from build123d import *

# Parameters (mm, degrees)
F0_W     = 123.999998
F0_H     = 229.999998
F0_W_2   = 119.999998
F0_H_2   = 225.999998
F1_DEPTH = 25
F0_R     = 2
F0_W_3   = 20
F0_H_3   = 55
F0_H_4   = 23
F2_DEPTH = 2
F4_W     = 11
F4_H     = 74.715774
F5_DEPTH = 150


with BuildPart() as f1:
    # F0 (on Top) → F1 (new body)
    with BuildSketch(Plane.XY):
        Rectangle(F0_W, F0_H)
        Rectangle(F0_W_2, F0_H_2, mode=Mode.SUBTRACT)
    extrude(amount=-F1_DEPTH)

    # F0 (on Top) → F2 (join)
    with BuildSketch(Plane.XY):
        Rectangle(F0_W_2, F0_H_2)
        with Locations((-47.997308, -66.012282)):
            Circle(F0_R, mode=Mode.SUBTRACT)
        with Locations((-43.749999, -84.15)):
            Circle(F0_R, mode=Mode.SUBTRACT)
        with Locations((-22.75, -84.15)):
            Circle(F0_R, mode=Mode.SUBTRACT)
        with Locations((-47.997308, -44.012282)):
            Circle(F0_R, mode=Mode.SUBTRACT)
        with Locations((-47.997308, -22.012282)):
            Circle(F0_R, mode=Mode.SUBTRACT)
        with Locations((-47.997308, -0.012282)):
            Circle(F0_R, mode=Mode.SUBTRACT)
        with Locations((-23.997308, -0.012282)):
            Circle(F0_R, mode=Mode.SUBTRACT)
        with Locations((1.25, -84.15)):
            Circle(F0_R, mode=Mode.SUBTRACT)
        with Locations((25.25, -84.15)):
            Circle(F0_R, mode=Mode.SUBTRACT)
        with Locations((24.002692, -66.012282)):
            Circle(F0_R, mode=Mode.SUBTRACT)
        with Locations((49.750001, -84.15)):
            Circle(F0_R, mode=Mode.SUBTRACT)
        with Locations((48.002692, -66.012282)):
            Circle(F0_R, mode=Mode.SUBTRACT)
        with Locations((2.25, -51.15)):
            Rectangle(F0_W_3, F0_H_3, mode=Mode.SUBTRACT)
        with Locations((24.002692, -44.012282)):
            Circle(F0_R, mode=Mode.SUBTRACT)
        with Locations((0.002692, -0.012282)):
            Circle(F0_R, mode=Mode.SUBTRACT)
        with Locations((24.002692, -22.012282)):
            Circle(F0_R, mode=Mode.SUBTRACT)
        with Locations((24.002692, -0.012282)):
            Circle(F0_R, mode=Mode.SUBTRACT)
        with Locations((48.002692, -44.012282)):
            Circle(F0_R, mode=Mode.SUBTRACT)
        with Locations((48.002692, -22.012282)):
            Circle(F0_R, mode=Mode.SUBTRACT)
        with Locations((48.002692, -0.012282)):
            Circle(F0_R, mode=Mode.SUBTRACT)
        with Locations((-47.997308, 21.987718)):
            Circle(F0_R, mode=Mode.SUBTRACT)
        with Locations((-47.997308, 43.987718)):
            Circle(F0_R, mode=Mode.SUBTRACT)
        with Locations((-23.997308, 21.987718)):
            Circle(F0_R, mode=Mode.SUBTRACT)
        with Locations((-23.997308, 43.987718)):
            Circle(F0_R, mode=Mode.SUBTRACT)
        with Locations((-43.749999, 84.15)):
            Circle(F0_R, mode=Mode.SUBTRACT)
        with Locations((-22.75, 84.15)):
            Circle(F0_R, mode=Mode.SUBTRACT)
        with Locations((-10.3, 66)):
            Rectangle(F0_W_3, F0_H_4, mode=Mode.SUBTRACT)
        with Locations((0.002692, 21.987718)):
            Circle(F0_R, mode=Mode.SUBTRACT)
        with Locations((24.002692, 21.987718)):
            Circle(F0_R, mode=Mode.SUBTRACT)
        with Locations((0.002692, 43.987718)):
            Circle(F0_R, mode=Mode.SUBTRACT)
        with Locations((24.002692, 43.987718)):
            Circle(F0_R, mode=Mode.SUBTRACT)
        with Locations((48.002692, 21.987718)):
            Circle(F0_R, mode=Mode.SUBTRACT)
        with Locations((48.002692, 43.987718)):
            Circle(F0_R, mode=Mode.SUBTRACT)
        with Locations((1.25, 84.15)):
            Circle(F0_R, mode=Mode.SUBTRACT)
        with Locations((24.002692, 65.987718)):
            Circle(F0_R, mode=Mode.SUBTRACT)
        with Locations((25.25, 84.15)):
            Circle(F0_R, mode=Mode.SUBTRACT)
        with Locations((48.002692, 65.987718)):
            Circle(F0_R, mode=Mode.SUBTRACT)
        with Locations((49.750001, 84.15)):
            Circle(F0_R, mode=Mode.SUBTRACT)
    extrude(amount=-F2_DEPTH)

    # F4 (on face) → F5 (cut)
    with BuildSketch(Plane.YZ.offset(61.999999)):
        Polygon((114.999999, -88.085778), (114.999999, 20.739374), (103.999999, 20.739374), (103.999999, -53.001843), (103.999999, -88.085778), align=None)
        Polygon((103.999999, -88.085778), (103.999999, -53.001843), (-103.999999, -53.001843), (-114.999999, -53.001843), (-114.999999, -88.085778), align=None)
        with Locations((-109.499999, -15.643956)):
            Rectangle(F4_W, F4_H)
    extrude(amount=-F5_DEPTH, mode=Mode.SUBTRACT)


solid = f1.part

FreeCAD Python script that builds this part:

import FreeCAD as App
import Part
import Sketcher


def add_polygon(sketch, points):
    """Adds a closed chain of lines whose ends are joined by coincident constraints."""
    first, n = sketch.GeometryCount, len(points)
    for a, b in zip(points, points[1:] + points[:1]):
        sketch.addGeometry(Part.LineSegment(App.Vector(*a, 0), App.Vector(*b, 0)), False)
    for i in range(n):
        sketch.addConstraint(Sketcher.Constraint("Coincident", first + i, 2, first + (i + 1) % n, 1))

doc = App.newDocument("Part")
params = doc.addObject("Spreadsheet::Sheet", "Params")
for row, (alias, value) in enumerate([
    ("sketch1_width", "123.999998 mm"),
    ("sketch1_width2", "119.999998 mm"),
    ("sketch1_height", "229.999998 mm"),
    ("sketch1_height2", "225.999998 mm"),
    ("pad1_length", "25 mm"),
    ("sketch2_diameter", "4 mm"),
    ("sketch2_width", "119.999998 mm"),
    ("sketch2_width2", "20 mm"),
    ("sketch2_height", "225.999998 mm"),
    ("sketch2_height2", "55 mm"),
    ("pad2_length", "2 mm"),
    ("sketch3_width", "11 mm"),
    ("sketch3_width2", "207.999998 mm"),
    ("pocket1_length", "150 mm"),
], start=1):
    params.set(f"A{row}", alias)
    params.set(f"B{row}", "=" + value)
    params.setAlias(f"B{row}", alias)

body = doc.addObject("PartDesign::Body", "Body")

# Sketch on XY plane
sketch1 = body.newObject("Sketcher::SketchObject", "Sketch")
sketch1.AttachmentSupport = (doc.getObject("XY_Plane"), [""])
sketch1.MapMode = "FlatFace"
add_polygon(sketch1, [(-61.999999, 114.999999), (-61.999999, -114.999999), (61.999999, -114.999999), (61.999999, 114.999999)])  # lines 0-3
add_polygon(sketch1, [(59.999999, -112.999999), (-59.999999, -112.999999), (-59.999999, 112.999999), (59.999999, 112.999999)])  # lines 4-7
sketch1.addConstraint([
    Sketcher.Constraint("Vertical", 0),
    Sketcher.Constraint("Horizontal", 1),
    Sketcher.Constraint("Vertical", 2),
    Sketcher.Constraint("Horizontal", 3),
    Sketcher.Constraint("Horizontal", 4),
    Sketcher.Constraint("Vertical", 5),
    Sketcher.Constraint("Horizontal", 6),
    Sketcher.Constraint("Vertical", 7),
    Sketcher.Constraint("Symmetric", 0, 2, 2, 2, -1, 1),
    Sketcher.Constraint("Symmetric", 4, 2, 6, 2, -1, 1),
    Sketcher.Constraint("DistanceX", 1, 1, 1, 2, 123.999998),
    Sketcher.Constraint("DistanceX", 4, 2, 4, 1, 119.999998),
    Sketcher.Constraint("DistanceY", 0, 2, 0, 1, 229.999998),
    Sketcher.Constraint("DistanceY", 5, 1, 5, 2, 225.999998),
])
sketch1.setExpression("Constraints[18]", "Params.sketch1_width")
sketch1.setExpression("Constraints[19]", "Params.sketch1_width2")
sketch1.setExpression("Constraints[20]", "Params.sketch1_height")
sketch1.setExpression("Constraints[21]", "Params.sketch1_height2")
pad1 = body.newObject("PartDesign::Pad", "Pad")
pad1.Profile = sketch1
pad1.setExpression("Length", "Params.pad1_length")
pad1.Reversed = True

# Sketch on XY plane
sketch2 = body.newObject("Sketcher::SketchObject", "Sketch001")
sketch2.AttachmentSupport = (doc.getObject("XY_Plane"), [""])
sketch2.MapMode = "FlatFace"
add_polygon(sketch2, [(-59.999999, 112.999999), (-59.999999, -112.999999), (59.999999, -112.999999), (59.999999, 112.999999)])  # lines 0-3
sketch2.addGeometry(Part.Circle(App.Vector(-43.749999, -84.15, 0), App.Vector(0, 0, 1), 2), False)  # 4
sketch2.addGeometry(Part.Circle(App.Vector(-47.997308, -66.012282, 0), App.Vector(0, 0, 1), 2), False)  # 5
sketch2.addGeometry(Part.Circle(App.Vector(-47.997308, -44.012282, 0), App.Vector(0, 0, 1), 2), False)  # 6
sketch2.addGeometry(Part.Circle(App.Vector(-22.75, -84.15, 0), App.Vector(0, 0, 1), 2), False)  # 7
sketch2.addGeometry(Part.Circle(App.Vector(-47.997308, -22.012282, 0), App.Vector(0, 0, 1), 2), False)  # 8
sketch2.addGeometry(Part.Circle(App.Vector(-47.997308, -0.012282, 0), App.Vector(0, 0, 1), 2), False)  # 9
sketch2.addGeometry(Part.Circle(App.Vector(-23.997308, -0.012282, 0), App.Vector(0, 0, 1), 2), False)  # 10
sketch2.addGeometry(Part.Circle(App.Vector(0.002692, -0.012282, 0), App.Vector(0, 0, 1), 2), False)  # 11
sketch2.addGeometry(Part.Circle(App.Vector(1.25, -84.15, 0), App.Vector(0, 0, 1), 2), False)  # 12
sketch2.addGeometry(Part.Circle(App.Vector(25.25, -84.15, 0), App.Vector(0, 0, 1), 2), False)  # 13
sketch2.addGeometry(Part.Circle(App.Vector(24.002692, -66.012282, 0), App.Vector(0, 0, 1), 2), False)  # 14
add_polygon(sketch2, [(12.25, -78.65), (-7.75, -78.65), (-7.75, -23.65), (12.25, -23.65)])  # lines 15-18
sketch2.addGeometry(Part.Circle(App.Vector(24.002692, -44.012282, 0), App.Vector(0, 0, 1), 2), False)  # 19
sketch2.addGeometry(Part.Circle(App.Vector(49.750001, -84.15, 0), App.Vector(0, 0, 1), 2), False)  # 20
sketch2.addGeometry(Part.Circle(App.Vector(48.002692, -66.012282, 0), App.Vector(0, 0, 1), 2), False)  # 21
sketch2.addGeometry(Part.Circle(App.Vector(48.002692, -44.012282, 0), App.Vector(0, 0, 1), 2), False)  # 22
sketch2.addGeometry(Part.Circle(App.Vector(24.002692, -22.012282, 0), App.Vector(0, 0, 1), 2), False)  # 23
sketch2.addGeometry(Part.Circle(App.Vector(24.002692, -0.012282, 0), App.Vector(0, 0, 1), 2), False)  # 24
sketch2.addGeometry(Part.Circle(App.Vector(48.002692, -22.012282, 0), App.Vector(0, 0, 1), 2), False)  # 25
sketch2.addGeometry(Part.Circle(App.Vector(48.002692, -0.012282, 0), App.Vector(0, 0, 1), 2), False)  # 26
sketch2.addGeometry(Part.Circle(App.Vector(-47.997308, 21.987718, 0), App.Vector(0, 0, 1), 2), False)  # 27
sketch2.addGeometry(Part.Circle(App.Vector(-23.997308, 21.987718, 0), App.Vector(0, 0, 1), 2), False)  # 28
sketch2.addGeometry(Part.Circle(App.Vector(0.002692, 21.987718, 0), App.Vector(0, 0, 1), 2), False)  # 29
sketch2.addGeometry(Part.Circle(App.Vector(-47.997308, 43.987718, 0), App.Vector(0, 0, 1), 2), False)  # 30
sketch2.addGeometry(Part.Circle(App.Vector(-43.749999, 84.15, 0), App.Vector(0, 0, 1), 2), False)  # 31
sketch2.addGeometry(Part.Circle(App.Vector(-23.997308, 43.987718, 0), App.Vector(0, 0, 1), 2), False)  # 32
sketch2.addGeometry(Part.Circle(App.Vector(0.002692, 43.987718, 0), App.Vector(0, 0, 1), 2), False)  # 33
sketch2.addGeometry(Part.Circle(App.Vector(-22.75, 84.15, 0), App.Vector(0, 0, 1), 2), False)  # 34
add_polygon(sketch2, [(-0.3, 54.5), (-20.3, 54.5), (-20.3, 77.5), (-0.3, 77.5)])  # lines 35-38
sketch2.addGeometry(Part.Circle(App.Vector(24.002692, 21.987718, 0), App.Vector(0, 0, 1), 2), False)  # 39
sketch2.addGeometry(Part.Circle(App.Vector(48.002692, 21.987718, 0), App.Vector(0, 0, 1), 2), False)  # 40
sketch2.addGeometry(Part.Circle(App.Vector(24.002692, 43.987718, 0), App.Vector(0, 0, 1), 2), False)  # 41
sketch2.addGeometry(Part.Circle(App.Vector(1.25, 84.15, 0), App.Vector(0, 0, 1), 2), False)  # 42
sketch2.addGeometry(Part.Circle(App.Vector(24.002692, 65.987718, 0), App.Vector(0, 0, 1), 2), False)  # 43
sketch2.addGeometry(Part.Circle(App.Vector(25.25, 84.15, 0), App.Vector(0, 0, 1), 2), False)  # 44
sketch2.addGeometry(Part.Circle(App.Vector(48.002692, 43.987718, 0), App.Vector(0, 0, 1), 2), False)  # 45
sketch2.addGeometry(Part.Circle(App.Vector(48.002692, 65.987718, 0), App.Vector(0, 0, 1), 2), False)  # 46
sketch2.addGeometry(Part.Circle(App.Vector(49.750001, 84.15, 0), App.Vector(0, 0, 1), 2), False)  # 47
sketch2.addConstraint([
    Sketcher.Constraint("Vertical", 0),
    Sketcher.Constraint("Horizontal", 1),
    Sketcher.Constraint("Vertical", 2),
    Sketcher.Constraint("Horizontal", 3),
    Sketcher.Constraint("Horizontal", 15),
    Sketcher.Constraint("Vertical", 16),
    Sketcher.Constraint("Horizontal", 17),
    Sketcher.Constraint("Vertical", 18),
    Sketcher.Constraint("Horizontal", 35),
    Sketcher.Constraint("Vertical", 36),
    Sketcher.Constraint("Horizontal", 37),
    Sketcher.Constraint("Vertical", 38),
    Sketcher.Constraint("Equal", 4, 5),
    Sketcher.Constraint("Equal", 5, 6),
    Sketcher.Constraint("Equal", 6, 7),
    Sketcher.Constraint("Equal", 7, 8),
    Sketcher.Constraint("Equal", 8, 9),
    Sketcher.Constraint("Equal", 9, 10),
    Sketcher.Constraint("Equal", 10, 11),
    Sketcher.Constraint("Equal", 11, 12),
    Sketcher.Constraint("Equal", 12, 13),
    Sketcher.Constraint("Equal", 13, 14),
    Sketcher.Constraint("Equal", 14, 19),
    Sketcher.Constraint("Equal", 19, 20),
    Sketcher.Constraint("Equal", 20, 21),
    Sketcher.Constraint("Equal", 21, 22),
    Sketcher.Constraint("Equal", 22, 23),
    Sketcher.Constraint("Equal", 23, 24),
    Sketcher.Constraint("Equal", 24, 25),
    Sketcher.Constraint("Equal", 25, 26),
    Sketcher.Constraint("Equal", 26, 27),
    Sketcher.Constraint("Equal", 27, 28),
    Sketcher.Constraint("Equal", 28, 29),
    Sketcher.Constraint("Equal", 29, 30),
    Sketcher.Constraint("Equal", 30, 31),
    Sketcher.Constraint("Equal", 31, 32),
    Sketcher.Constraint("Equal", 32, 33),
    Sketcher.Constraint("Equal", 33, 34),
    Sketcher.Constraint("Equal", 34, 39),
    Sketcher.Constraint("Equal", 39, 40),
    Sketcher.Constraint("Equal", 40, 41),
    Sketcher.Constraint("Equal", 41, 42),
    Sketcher.Constraint("Equal", 42, 43),
    Sketcher.Constraint("Equal", 43, 44),
    Sketcher.Constraint("Equal", 44, 45),
    Sketcher.Constraint("Equal", 45, 46),
    Sketcher.Constraint("Equal", 46, 47),
    Sketcher.Constraint("Symmetric", 0, 2, 2, 2, -1, 1),
    Sketcher.Constraint("Symmetric", 4, 3, 31, 3, -1),
    Sketcher.Constraint("Symmetric", 7, 3, 34, 3, -1),
    Sketcher.Constraint("Symmetric", 12, 3, 42, 3, -1),
    Sketcher.Constraint("Symmetric", 13, 3, 44, 3, -1),
    Sketcher.Constraint("Symmetric", 20, 3, 47, 3, -1),
    Sketcher.Constraint("Horizontal", 4, 3, 7, 3),
    Sketcher.Constraint("Horizontal", 9, 3, 10, 3),
    Sketcher.Constraint("Horizontal", 10, 3, 11, 3),
    Sketcher.Constraint("Horizontal", 7, 3, 12, 3),
    Sketcher.Constraint("Horizontal", 12, 3, 13, 3),
    Sketcher.Constraint("Horizontal", 5, 3, 14, 3),
    Sketcher.Constraint("Horizontal", 6, 3, 19, 3),
    Sketcher.Constraint("Horizontal", 13, 3, 20, 3),
    Sketcher.Constraint("Horizontal", 14, 3, 21, 3),
    Sketcher.Constraint("Horizontal", 19, 3, 22, 3),
    Sketcher.Constraint("Horizontal", 8, 3, 23, 3),
    Sketcher.Constraint("Horizontal", 11, 3, 24, 3),
    Sketcher.Constraint("Horizontal", 23, 3, 25, 3),
    Sketcher.Constraint("Horizontal", 24, 3, 26, 3),
    Sketcher.Constraint("Horizontal", 27, 3, 28, 3),
    Sketcher.Constraint("Horizontal", 28, 3, 29, 3),
    Sketcher.Constraint("Horizontal", 30, 3, 32, 3),
    Sketcher.Constraint("Horizontal", 32, 3, 33, 3),
    Sketcher.Constraint("Horizontal", 29, 3, 39, 3),
    Sketcher.Constraint("Horizontal", 39, 3, 40, 3),
    Sketcher.Constraint("Horizontal", 33, 3, 41, 3),
    Sketcher.Constraint("Horizontal", 41, 3, 45, 3),
    Sketcher.Constraint("Horizontal", 43, 3, 46, 3),
    Sketcher.Constraint("Vertical", 5, 3, 6, 3),
    Sketcher.Constraint("Vertical", 6, 3, 8, 3),
    Sketcher.Constraint("Vertical", 8, 3, 9, 3),
    Sketcher.Constraint("Vertical", 14, 3, 19, 3),
    Sketcher.Constraint("Vertical", 21, 3, 22, 3),
    Sketcher.Constraint("Vertical", 19, 3, 23, 3),
    Sketcher.Constraint("Vertical", 23, 3, 24, 3),
    Sketcher.Constraint("Vertical", 22, 3, 25, 3),
    Sketcher.Constraint("Vertical", 25, 3, 26, 3),
    Sketcher.Constraint("Vertical", 9, 3, 27, 3),
    Sketcher.Constraint("Vertical", 10, 3, 28, 3),
    Sketcher.Constraint("Vertical", 11, 3, 29, 3),
    Sketcher.Constraint("Vertical", 27, 3, 30, 3),
    Sketcher.Constraint("Vertical", 28, 3, 32, 3),
    Sketcher.Constraint("Vertical", 29, 3, 33, 3),
    Sketcher.Constraint("Vertical", 24, 3, 39, 3),
    Sketcher.Constraint("Vertical", 26, 3, 40, 3),
    Sketcher.Constraint("Vertical", 39, 3, 41, 3),
    Sketcher.Constraint("Vertical", 41, 3, 43, 3),
    Sketcher.Constraint("Vertical", 40, 3, 45, 3),
    Sketcher.Constraint("Vertical", 45, 3, 46, 3),
    Sketcher.Constraint("Equal", 17, 35),
    Sketcher.Constraint("Diameter", 4, 4.0),
    Sketcher.Constraint("DistanceX", 1, 1, 1, 2, 119.999998),
    Sketcher.Constraint("DistanceX", 15, 2, 15, 1, 20.0),
    Sketcher.Constraint("DistanceY", 0, 2, 0, 1, 225.999998),
    Sketcher.Constraint("DistanceY", 16, 1, 16, 2, 55.0),
    Sketcher.Constraint("DistanceY", 36, 1, 36, 2, 23.0),
    Sketcher.Constraint("DistanceY", 5, 3, 6, 3, 22.0),
    Sketcher.Constraint("DistanceX", 4, 3, 7, 3, 20.999999),
    Sketcher.Constraint("DistanceY", 6, 3, 8, 3, 22.0),
    Sketcher.Constraint("DistanceY", 8, 3, 9, 3, 22.0),
    Sketcher.Constraint("DistanceX", 9, 3, 10, 3, 24.0),
    Sketcher.Constraint("DistanceX", 10, 3, 11, 3, 24.0),
    Sketcher.Constraint("DistanceX", 7, 3, 12, 3, 24.0),
    Sketcher.Constraint("DistanceX", 12, 3, 13, 3, 24.0),
    Sketcher.Constraint("DistanceX", 11, 3, 14, 3, 24.0),
    Sketcher.Constraint("DistanceX", 14, 3, 21, 3, 24.0),
    Sketcher.Constraint("DistanceY", 9, 3, 27, 3, 22.0),
    Sketcher.Constraint("DistanceY", 27, 3, 30, 3, 22.0),
    Sketcher.Constraint("DistanceY", 41, 3, 43, 3, 22.0),
    Sketcher.Constraint("DistanceX", 15, 2, 12, 3, 9.0),
    Sketcher.Constraint("DistanceX", 35, 2, -1, 1, 20.3),
    Sketcher.Constraint("DistanceY", -1, 1, 35, 2, 54.5),
    Sketcher.Constraint("DistanceX", 13, 3, 20, 3, 24.500001),
    Sketcher.Constraint("DistanceY", 12, 3, 15, 2, 5.5),
    Sketcher.Constraint("DistanceX", 4, 3, -1, 1, 43.749999),
    Sketcher.Constraint("DistanceY", 4, 3, -1, 1, 84.15),
    Sketcher.Constraint("DistanceY", 5, 3, -1, 1, 66.012282),
    Sketcher.Constraint("DistanceX", 10, 3, -1, 1, 23.997308),
])
sketch2.setExpression("Constraints[110]", "Params.sketch2_diameter")
sketch2.setExpression("Constraints[111]", "Params.sketch2_width")
sketch2.setExpression("Constraints[112]", "Params.sketch2_width2")
sketch2.setExpression("Constraints[113]", "Params.sketch2_height")
sketch2.setExpression("Constraints[114]", "Params.sketch2_height2")
pad2 = body.newObject("PartDesign::Pad", "Pad001")
pad2.Profile = sketch2
pad2.setExpression("Length", "Params.pad2_length")
pad2.Reversed = True

# Sketch on YZ plane
sketch3 = body.newObject("Sketcher::SketchObject", "Sketch002")
sketch3.AttachmentSupport = (doc.getObject("YZ_Plane"), [""])
sketch3.MapMode = "FlatFace"
sketch3.AttachmentOffset = App.Placement(App.Vector(0, 0, 61.999999), App.Rotation())
add_polygon(sketch3, [(114.999999, -88.085778), (114.999999, 20.739374), (103.999999, 20.739374), (103.999999, -53.001843), (-103.999999, -53.001843), (-103.999999, 21.713931), (-114.999999, 21.713931), (-114.999999, -88.085778)])  # lines 0-7
sketch3.addConstraint([
    Sketcher.Constraint("Vertical", 0),
    Sketcher.Constraint("Horizontal", 1),
    Sketcher.Constraint("Vertical", 2),
    Sketcher.Constraint("Horizontal", 3),
    Sketcher.Constraint("Vertical", 4),
    Sketcher.Constraint("Horizontal", 5),
    Sketcher.Constraint("Vertical", 6),
    Sketcher.Constraint("Horizontal", 7),
    Sketcher.Constraint("Equal", 1, 5),
    Sketcher.Constraint("DistanceX", 1, 2, 1, 1, 11.0),
    Sketcher.Constraint("DistanceX", 3, 2, 3, 1, 207.999998),
    Sketcher.Constraint("DistanceX", -1, 1, 0, 2, 114.999999),
    Sketcher.Constraint("DistanceY", 6, 2, 6, 1, 109.799709),
    Sketcher.Constraint("DistanceY", 0, 1, 0, 2, 108.825152),
    Sketcher.Constraint("DistanceY", 2, 2, 2, 1, 73.741217),
    Sketcher.Constraint("DistanceY", -1, 1, 4, 2, 21.713931),
])
sketch3.setExpression("Constraints[17]", "Params.sketch3_width")
sketch3.setExpression("Constraints[18]", "Params.sketch3_width2")
pocket1 = body.newObject("PartDesign::Pocket", "Pocket")
pocket1.Profile = sketch3
pocket1.setExpression("Length", "Params.pocket1_length")

doc.recompute()
